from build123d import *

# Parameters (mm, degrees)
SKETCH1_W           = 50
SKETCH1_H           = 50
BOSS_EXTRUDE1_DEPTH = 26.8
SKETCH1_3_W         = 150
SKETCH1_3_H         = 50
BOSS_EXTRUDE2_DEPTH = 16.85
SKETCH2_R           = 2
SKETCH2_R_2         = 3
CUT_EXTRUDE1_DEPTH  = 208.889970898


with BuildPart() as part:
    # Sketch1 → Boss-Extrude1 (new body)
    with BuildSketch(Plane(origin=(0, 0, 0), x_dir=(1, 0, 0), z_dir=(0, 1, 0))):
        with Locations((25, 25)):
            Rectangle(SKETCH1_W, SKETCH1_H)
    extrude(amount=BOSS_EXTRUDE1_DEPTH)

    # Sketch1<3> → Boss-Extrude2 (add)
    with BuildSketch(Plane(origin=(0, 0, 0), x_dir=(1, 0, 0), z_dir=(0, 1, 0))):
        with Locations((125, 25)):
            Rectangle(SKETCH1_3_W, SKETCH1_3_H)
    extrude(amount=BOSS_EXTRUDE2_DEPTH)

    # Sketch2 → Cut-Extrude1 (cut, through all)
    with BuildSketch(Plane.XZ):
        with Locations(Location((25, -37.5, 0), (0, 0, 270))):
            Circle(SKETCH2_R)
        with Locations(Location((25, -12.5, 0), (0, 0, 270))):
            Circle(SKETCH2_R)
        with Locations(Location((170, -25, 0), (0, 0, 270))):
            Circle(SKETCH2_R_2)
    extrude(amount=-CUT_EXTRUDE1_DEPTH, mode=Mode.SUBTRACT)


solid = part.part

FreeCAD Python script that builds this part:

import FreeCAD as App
import Part
import Sketcher

doc = App.newDocument("Part")
body = doc.addObject("PartDesign::Body", "Body")

sketch1 = doc.addObject("Sketcher::SketchObject", "Sketch")
body.addObject(sketch1)
sketch1.AttachmentSupport = (doc.XZ_Plane, [""])
sketch1.MapMode = "FlatFace"
sketch1.addGeometry([
    Part.LineSegment(App.Vector(0, -50, 0), App.Vector(0, 0, 0)),
    Part.LineSegment(App.Vector(0, 0, 0), App.Vector(50, 0, 0)),
    Part.LineSegment(App.Vector(50, 0, 0), App.Vector(50, -50, 0)),
    Part.LineSegment(App.Vector(50, -50, 0), App.Vector(0, -50, 0)),
], False)
sketch1.addConstraint([
    Sketcher.Constraint("Coincident", 0, 2, 1, 1),
    Sketcher.Constraint("Coincident", 1, 2, 2, 1),
    Sketcher.Constraint("Coincident", 2, 2, 3, 1),
    Sketcher.Constraint("Coincident", 3, 2, 0, 1),
    Sketcher.Constraint("Vertical", 0),
    Sketcher.Constraint("Horizontal", 1),
    Sketcher.Constraint("Vertical", 2),
    Sketcher.Constraint("Horizontal", 3),
    Sketcher.Constraint("Coincident", 0, 2, -1, 1),
    Sketcher.Constraint("Equal", 3, 0),
    Sketcher.Constraint("DistanceX", 1, 1, 1, 2, 50.0),
])
pad1 = doc.addObject("PartDesign::Pad", "Pad")
body.addObject(pad1)
pad1.Profile = sketch1
pad1.Length = 26.8
pad1.Reversed = True

sketch2 = doc.addObject("Sketcher::SketchObject", "Sketch001")
body.addObject(sketch2)
sketch2.AttachmentSupport = (doc.XZ_Plane, [""])
sketch2.MapMode = "FlatFace"
sketch2.addGeometry([
    Part.LineSegment(App.Vector(50, -50, 0), App.Vector(50, 0, 0)),
    Part.LineSegment(App.Vector(50, 0, 0), App.Vector(200, 0, 0)),
    Part.LineSegment(App.Vector(200, 0, 0), App.Vector(200, -50, 0)),
    Part.LineSegment(App.Vector(200, -50, 0), App.Vector(50, -50, 0)),
], False)
sketch2.addConstraint([
    Sketcher.Constraint("Coincident", 0, 2, 1, 1),
    Sketcher.Constraint("Coincident", 1, 2, 2, 1),
    Sketcher.Constraint("Coincident", 2, 2, 3, 1),
    Sketcher.Constraint("Coincident", 3, 2, 0, 1),
    Sketcher.Constraint("Vertical", 0),
    Sketcher.Constraint("Horizontal", 1),
    Sketcher.Constraint("Vertical", 2),
    Sketcher.Constraint("Horizontal", 3),
    Sketcher.Constraint("PointOnObject", 0, 2, -1),
    Sketcher.Constraint("DistanceX", 1, 1, 1, 2, 150.0),
    Sketcher.Constraint("DistanceY", 0, 1, 0, 2, 50.0),
    Sketcher.Constraint("DistanceX", -1, 1, 0, 2, 50.0),
])
pad2 = doc.addObject("PartDesign::Pad", "Pad001")
body.addObject(pad2)
pad2.Profile = sketch2
pad2.Length = 16.85
pad2.Reversed = True

sketch3 = doc.addObject("Sketcher::SketchObject", "Sketch002")
body.addObject(sketch3)
sketch3.AttachmentSupport = (doc.XZ_Plane, [""])
sketch3.MapMode = "FlatFace"
sketch3.addGeometry([
    Part.Circle(App.Vector(25, -37.5, 0), App.Vector(0, 0, 1), 2),
    Part.Circle(App.Vector(25, -12.5, 0), App.Vector(0, 0, 1), 2),
    Part.Circle(App.Vector(170, -25, 0), App.Vector(0, 0, 1), 3),
], False)
sketch3.addConstraint([
    Sketcher.Constraint("Equal", 0, 1),
    Sketcher.Constraint("Vertical", 0, 3, 1, 3),
    Sketcher.Constraint("Diameter", 0, 4.0),
    Sketcher.Constraint("Diameter", 2, 6.0),
    Sketcher.Constraint("DistanceX", -1, 1, 0, 3, 25.0),
    Sketcher.Constraint("DistanceX", -1, 1, 2, 3, 170.0),
    Sketcher.Constraint("DistanceY", 2, 3, -1, 1, 25.0),
    Sketcher.Constraint("DistanceY", 0, 3, 1, 3, 25.0),
    Sketcher.Constraint("DistanceY", 0, 3, -1, 1, 37.5),
])
pocket1 = doc.addObject("PartDesign::Pocket", "Pocket")
body.addObject(pocket1)
pocket1.Profile = sketch3
pocket1.Type = "ThroughAll"

doc.recompute()
